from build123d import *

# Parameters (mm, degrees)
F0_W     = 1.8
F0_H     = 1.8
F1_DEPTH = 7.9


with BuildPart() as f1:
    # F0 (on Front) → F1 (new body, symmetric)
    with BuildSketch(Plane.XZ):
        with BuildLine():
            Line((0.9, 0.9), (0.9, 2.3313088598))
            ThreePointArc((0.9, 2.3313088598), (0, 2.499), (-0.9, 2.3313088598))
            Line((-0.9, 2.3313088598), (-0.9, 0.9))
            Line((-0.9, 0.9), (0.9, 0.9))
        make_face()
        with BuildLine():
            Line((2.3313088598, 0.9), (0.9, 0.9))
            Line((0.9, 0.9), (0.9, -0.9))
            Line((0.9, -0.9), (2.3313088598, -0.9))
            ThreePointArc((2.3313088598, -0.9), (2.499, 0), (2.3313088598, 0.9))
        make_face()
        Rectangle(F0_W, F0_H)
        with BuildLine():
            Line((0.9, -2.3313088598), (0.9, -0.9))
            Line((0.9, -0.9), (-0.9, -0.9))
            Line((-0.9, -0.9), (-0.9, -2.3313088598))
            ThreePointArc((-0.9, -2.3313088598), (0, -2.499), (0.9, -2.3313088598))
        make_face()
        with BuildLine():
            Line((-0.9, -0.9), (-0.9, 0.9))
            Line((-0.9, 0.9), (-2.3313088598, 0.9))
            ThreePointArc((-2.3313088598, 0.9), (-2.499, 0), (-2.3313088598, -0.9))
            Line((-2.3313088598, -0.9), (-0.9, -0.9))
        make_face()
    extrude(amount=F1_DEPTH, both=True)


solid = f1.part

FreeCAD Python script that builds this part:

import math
import FreeCAD as App
import Part
import Sketcher

doc = App.newDocument("Part")
body = doc.addObject("PartDesign::Body", "Body")

sketch1 = body.newObject("Sketcher::SketchObject", "Sketch")
sketch1.AttachmentSupport = (doc.getObject("XZ_Plane"), [""])
sketch1.MapMode = "FlatFace"
sketch1.addGeometry([
    Part.LineSegment(App.Vector(0.9, 0.9, 0), App.Vector(0.9, 2.331309, 0)),
    Part.ArcOfCircle(Part.Circle(App.Vector(0, 0, 0), App.Vector(0, 0, 1), 2.499), math.radians(68.890957), math.radians(111.109043)),
    Part.LineSegment(App.Vector(-0.9, 2.331309, 0), App.Vector(-0.9, 0.9, 0)),
    Part.LineSegment(App.Vector(-0.9, 0.9, 0), App.Vector(-2.331309, 0.9, 0)),
    Part.ArcOfCircle(Part.Circle(App.Vector(0, 0, 0), App.Vector(0, 0, 1), 2.499), math.radians(158.890957), math.radians(201.109043)),
    Part.LineSegment(App.Vector(-2.331309, -0.9, 0), App.Vector(-0.9, -0.9, 0)),
    Part.LineSegment(App.Vector(-0.9, -0.9, 0), App.Vector(-0.9, -2.331309, 0)),
    Part.ArcOfCircle(Part.Circle(App.Vector(0, 0, 0), App.Vector(0, 0, 1), 2.499), math.radians(-111.109043), math.radians(-68.890957)),
    Part.LineSegment(App.Vector(0.9, -2.331309, 0), App.Vector(0.9, -0.9, 0)),
    Part.LineSegment(App.Vector(0.9, -0.9, 0), App.Vector(2.331309, -0.9, 0)),
    Part.ArcOfCircle(Part.Circle(App.Vector(0, 0, 0), App.Vector(0, 0, 1), 2.499), math.radians(-21.109043), math.radians(21.109043)),
    Part.LineSegment(App.Vector(2.331309, 0.9, 0), App.Vector(0.9, 0.9, 0)),
], False)
sketch1.addConstraint([
    Sketcher.Constraint("Coincident", 0, 2, 1, 1),
    Sketcher.Constraint("Coincident", 1, 2, 2, 1),
    Sketcher.Constraint("Coincident", 2, 2, 3, 1),
    Sketcher.Constraint("Coincident", 3, 2, 4, 1),
    Sketcher.Constraint("Coincident", 4, 2, 5, 1),
    Sketcher.Constraint("Coincident", 5, 2, 6, 1),
    Sketcher.Constraint("Coincident", 6, 2, 7, 1),
    Sketcher.Constraint("Coincident", 7, 2, 8, 1),
    Sketcher.Constraint("Coincident", 8, 2, 9, 1),
    Sketcher.Constraint("Coincident", 9, 2, 10, 1),
    Sketcher.Constraint("Coincident", 10, 2, 11, 1),
    Sketcher.Constraint("Coincident", 11, 2, 0, 1),
    Sketcher.Constraint("Vertical", 0),
    Sketcher.Constraint("Vertical", 2),
    Sketcher.Constraint("Horizontal", 3),
    Sketcher.Constraint("Horizontal", 5),
    Sketcher.Constraint("Vertical", 6),
    Sketcher.Constraint("Vertical", 8),
    Sketcher.Constraint("Horizontal", 9),
    Sketcher.Constraint("Horizontal", 11),
    Sketcher.Constraint("Coincident", 1, 3, -1, 1),
    Sketcher.Constraint("Coincident", 4, 3, -1, 1),
    Sketcher.Constraint("Coincident", 7, 3, -1, 1),
    Sketcher.Constraint("Coincident", 10, 3, -1, 1),
    Sketcher.Constraint("Equal", 1, 4),
    Sketcher.Constraint("Equal", 4, 7),
    Sketcher.Constraint("Equal", 7, 10),
    Sketcher.Constraint("Symmetric", 2, 2, 8, 2, -1, 1),
    Sketcher.Constraint("Symmetric", 5, 2, 11, 2, -1, 1),
    Sketcher.Constraint("Symmetric", 5, 2, 8, 2, -2),
    Sketcher.Constraint("Equal", 11, 0),
    Sketcher.Constraint("Radius", 1, 2.499),
    Sketcher.Constraint("DistanceX", -1, 1, 0, 2, 0.9),
])
pad1 = body.newObject("PartDesign::Pad", "Pad")
pad1.Profile = sketch1
pad1.Length = 15.8
pad1.Midplane = True

doc.recompute()
